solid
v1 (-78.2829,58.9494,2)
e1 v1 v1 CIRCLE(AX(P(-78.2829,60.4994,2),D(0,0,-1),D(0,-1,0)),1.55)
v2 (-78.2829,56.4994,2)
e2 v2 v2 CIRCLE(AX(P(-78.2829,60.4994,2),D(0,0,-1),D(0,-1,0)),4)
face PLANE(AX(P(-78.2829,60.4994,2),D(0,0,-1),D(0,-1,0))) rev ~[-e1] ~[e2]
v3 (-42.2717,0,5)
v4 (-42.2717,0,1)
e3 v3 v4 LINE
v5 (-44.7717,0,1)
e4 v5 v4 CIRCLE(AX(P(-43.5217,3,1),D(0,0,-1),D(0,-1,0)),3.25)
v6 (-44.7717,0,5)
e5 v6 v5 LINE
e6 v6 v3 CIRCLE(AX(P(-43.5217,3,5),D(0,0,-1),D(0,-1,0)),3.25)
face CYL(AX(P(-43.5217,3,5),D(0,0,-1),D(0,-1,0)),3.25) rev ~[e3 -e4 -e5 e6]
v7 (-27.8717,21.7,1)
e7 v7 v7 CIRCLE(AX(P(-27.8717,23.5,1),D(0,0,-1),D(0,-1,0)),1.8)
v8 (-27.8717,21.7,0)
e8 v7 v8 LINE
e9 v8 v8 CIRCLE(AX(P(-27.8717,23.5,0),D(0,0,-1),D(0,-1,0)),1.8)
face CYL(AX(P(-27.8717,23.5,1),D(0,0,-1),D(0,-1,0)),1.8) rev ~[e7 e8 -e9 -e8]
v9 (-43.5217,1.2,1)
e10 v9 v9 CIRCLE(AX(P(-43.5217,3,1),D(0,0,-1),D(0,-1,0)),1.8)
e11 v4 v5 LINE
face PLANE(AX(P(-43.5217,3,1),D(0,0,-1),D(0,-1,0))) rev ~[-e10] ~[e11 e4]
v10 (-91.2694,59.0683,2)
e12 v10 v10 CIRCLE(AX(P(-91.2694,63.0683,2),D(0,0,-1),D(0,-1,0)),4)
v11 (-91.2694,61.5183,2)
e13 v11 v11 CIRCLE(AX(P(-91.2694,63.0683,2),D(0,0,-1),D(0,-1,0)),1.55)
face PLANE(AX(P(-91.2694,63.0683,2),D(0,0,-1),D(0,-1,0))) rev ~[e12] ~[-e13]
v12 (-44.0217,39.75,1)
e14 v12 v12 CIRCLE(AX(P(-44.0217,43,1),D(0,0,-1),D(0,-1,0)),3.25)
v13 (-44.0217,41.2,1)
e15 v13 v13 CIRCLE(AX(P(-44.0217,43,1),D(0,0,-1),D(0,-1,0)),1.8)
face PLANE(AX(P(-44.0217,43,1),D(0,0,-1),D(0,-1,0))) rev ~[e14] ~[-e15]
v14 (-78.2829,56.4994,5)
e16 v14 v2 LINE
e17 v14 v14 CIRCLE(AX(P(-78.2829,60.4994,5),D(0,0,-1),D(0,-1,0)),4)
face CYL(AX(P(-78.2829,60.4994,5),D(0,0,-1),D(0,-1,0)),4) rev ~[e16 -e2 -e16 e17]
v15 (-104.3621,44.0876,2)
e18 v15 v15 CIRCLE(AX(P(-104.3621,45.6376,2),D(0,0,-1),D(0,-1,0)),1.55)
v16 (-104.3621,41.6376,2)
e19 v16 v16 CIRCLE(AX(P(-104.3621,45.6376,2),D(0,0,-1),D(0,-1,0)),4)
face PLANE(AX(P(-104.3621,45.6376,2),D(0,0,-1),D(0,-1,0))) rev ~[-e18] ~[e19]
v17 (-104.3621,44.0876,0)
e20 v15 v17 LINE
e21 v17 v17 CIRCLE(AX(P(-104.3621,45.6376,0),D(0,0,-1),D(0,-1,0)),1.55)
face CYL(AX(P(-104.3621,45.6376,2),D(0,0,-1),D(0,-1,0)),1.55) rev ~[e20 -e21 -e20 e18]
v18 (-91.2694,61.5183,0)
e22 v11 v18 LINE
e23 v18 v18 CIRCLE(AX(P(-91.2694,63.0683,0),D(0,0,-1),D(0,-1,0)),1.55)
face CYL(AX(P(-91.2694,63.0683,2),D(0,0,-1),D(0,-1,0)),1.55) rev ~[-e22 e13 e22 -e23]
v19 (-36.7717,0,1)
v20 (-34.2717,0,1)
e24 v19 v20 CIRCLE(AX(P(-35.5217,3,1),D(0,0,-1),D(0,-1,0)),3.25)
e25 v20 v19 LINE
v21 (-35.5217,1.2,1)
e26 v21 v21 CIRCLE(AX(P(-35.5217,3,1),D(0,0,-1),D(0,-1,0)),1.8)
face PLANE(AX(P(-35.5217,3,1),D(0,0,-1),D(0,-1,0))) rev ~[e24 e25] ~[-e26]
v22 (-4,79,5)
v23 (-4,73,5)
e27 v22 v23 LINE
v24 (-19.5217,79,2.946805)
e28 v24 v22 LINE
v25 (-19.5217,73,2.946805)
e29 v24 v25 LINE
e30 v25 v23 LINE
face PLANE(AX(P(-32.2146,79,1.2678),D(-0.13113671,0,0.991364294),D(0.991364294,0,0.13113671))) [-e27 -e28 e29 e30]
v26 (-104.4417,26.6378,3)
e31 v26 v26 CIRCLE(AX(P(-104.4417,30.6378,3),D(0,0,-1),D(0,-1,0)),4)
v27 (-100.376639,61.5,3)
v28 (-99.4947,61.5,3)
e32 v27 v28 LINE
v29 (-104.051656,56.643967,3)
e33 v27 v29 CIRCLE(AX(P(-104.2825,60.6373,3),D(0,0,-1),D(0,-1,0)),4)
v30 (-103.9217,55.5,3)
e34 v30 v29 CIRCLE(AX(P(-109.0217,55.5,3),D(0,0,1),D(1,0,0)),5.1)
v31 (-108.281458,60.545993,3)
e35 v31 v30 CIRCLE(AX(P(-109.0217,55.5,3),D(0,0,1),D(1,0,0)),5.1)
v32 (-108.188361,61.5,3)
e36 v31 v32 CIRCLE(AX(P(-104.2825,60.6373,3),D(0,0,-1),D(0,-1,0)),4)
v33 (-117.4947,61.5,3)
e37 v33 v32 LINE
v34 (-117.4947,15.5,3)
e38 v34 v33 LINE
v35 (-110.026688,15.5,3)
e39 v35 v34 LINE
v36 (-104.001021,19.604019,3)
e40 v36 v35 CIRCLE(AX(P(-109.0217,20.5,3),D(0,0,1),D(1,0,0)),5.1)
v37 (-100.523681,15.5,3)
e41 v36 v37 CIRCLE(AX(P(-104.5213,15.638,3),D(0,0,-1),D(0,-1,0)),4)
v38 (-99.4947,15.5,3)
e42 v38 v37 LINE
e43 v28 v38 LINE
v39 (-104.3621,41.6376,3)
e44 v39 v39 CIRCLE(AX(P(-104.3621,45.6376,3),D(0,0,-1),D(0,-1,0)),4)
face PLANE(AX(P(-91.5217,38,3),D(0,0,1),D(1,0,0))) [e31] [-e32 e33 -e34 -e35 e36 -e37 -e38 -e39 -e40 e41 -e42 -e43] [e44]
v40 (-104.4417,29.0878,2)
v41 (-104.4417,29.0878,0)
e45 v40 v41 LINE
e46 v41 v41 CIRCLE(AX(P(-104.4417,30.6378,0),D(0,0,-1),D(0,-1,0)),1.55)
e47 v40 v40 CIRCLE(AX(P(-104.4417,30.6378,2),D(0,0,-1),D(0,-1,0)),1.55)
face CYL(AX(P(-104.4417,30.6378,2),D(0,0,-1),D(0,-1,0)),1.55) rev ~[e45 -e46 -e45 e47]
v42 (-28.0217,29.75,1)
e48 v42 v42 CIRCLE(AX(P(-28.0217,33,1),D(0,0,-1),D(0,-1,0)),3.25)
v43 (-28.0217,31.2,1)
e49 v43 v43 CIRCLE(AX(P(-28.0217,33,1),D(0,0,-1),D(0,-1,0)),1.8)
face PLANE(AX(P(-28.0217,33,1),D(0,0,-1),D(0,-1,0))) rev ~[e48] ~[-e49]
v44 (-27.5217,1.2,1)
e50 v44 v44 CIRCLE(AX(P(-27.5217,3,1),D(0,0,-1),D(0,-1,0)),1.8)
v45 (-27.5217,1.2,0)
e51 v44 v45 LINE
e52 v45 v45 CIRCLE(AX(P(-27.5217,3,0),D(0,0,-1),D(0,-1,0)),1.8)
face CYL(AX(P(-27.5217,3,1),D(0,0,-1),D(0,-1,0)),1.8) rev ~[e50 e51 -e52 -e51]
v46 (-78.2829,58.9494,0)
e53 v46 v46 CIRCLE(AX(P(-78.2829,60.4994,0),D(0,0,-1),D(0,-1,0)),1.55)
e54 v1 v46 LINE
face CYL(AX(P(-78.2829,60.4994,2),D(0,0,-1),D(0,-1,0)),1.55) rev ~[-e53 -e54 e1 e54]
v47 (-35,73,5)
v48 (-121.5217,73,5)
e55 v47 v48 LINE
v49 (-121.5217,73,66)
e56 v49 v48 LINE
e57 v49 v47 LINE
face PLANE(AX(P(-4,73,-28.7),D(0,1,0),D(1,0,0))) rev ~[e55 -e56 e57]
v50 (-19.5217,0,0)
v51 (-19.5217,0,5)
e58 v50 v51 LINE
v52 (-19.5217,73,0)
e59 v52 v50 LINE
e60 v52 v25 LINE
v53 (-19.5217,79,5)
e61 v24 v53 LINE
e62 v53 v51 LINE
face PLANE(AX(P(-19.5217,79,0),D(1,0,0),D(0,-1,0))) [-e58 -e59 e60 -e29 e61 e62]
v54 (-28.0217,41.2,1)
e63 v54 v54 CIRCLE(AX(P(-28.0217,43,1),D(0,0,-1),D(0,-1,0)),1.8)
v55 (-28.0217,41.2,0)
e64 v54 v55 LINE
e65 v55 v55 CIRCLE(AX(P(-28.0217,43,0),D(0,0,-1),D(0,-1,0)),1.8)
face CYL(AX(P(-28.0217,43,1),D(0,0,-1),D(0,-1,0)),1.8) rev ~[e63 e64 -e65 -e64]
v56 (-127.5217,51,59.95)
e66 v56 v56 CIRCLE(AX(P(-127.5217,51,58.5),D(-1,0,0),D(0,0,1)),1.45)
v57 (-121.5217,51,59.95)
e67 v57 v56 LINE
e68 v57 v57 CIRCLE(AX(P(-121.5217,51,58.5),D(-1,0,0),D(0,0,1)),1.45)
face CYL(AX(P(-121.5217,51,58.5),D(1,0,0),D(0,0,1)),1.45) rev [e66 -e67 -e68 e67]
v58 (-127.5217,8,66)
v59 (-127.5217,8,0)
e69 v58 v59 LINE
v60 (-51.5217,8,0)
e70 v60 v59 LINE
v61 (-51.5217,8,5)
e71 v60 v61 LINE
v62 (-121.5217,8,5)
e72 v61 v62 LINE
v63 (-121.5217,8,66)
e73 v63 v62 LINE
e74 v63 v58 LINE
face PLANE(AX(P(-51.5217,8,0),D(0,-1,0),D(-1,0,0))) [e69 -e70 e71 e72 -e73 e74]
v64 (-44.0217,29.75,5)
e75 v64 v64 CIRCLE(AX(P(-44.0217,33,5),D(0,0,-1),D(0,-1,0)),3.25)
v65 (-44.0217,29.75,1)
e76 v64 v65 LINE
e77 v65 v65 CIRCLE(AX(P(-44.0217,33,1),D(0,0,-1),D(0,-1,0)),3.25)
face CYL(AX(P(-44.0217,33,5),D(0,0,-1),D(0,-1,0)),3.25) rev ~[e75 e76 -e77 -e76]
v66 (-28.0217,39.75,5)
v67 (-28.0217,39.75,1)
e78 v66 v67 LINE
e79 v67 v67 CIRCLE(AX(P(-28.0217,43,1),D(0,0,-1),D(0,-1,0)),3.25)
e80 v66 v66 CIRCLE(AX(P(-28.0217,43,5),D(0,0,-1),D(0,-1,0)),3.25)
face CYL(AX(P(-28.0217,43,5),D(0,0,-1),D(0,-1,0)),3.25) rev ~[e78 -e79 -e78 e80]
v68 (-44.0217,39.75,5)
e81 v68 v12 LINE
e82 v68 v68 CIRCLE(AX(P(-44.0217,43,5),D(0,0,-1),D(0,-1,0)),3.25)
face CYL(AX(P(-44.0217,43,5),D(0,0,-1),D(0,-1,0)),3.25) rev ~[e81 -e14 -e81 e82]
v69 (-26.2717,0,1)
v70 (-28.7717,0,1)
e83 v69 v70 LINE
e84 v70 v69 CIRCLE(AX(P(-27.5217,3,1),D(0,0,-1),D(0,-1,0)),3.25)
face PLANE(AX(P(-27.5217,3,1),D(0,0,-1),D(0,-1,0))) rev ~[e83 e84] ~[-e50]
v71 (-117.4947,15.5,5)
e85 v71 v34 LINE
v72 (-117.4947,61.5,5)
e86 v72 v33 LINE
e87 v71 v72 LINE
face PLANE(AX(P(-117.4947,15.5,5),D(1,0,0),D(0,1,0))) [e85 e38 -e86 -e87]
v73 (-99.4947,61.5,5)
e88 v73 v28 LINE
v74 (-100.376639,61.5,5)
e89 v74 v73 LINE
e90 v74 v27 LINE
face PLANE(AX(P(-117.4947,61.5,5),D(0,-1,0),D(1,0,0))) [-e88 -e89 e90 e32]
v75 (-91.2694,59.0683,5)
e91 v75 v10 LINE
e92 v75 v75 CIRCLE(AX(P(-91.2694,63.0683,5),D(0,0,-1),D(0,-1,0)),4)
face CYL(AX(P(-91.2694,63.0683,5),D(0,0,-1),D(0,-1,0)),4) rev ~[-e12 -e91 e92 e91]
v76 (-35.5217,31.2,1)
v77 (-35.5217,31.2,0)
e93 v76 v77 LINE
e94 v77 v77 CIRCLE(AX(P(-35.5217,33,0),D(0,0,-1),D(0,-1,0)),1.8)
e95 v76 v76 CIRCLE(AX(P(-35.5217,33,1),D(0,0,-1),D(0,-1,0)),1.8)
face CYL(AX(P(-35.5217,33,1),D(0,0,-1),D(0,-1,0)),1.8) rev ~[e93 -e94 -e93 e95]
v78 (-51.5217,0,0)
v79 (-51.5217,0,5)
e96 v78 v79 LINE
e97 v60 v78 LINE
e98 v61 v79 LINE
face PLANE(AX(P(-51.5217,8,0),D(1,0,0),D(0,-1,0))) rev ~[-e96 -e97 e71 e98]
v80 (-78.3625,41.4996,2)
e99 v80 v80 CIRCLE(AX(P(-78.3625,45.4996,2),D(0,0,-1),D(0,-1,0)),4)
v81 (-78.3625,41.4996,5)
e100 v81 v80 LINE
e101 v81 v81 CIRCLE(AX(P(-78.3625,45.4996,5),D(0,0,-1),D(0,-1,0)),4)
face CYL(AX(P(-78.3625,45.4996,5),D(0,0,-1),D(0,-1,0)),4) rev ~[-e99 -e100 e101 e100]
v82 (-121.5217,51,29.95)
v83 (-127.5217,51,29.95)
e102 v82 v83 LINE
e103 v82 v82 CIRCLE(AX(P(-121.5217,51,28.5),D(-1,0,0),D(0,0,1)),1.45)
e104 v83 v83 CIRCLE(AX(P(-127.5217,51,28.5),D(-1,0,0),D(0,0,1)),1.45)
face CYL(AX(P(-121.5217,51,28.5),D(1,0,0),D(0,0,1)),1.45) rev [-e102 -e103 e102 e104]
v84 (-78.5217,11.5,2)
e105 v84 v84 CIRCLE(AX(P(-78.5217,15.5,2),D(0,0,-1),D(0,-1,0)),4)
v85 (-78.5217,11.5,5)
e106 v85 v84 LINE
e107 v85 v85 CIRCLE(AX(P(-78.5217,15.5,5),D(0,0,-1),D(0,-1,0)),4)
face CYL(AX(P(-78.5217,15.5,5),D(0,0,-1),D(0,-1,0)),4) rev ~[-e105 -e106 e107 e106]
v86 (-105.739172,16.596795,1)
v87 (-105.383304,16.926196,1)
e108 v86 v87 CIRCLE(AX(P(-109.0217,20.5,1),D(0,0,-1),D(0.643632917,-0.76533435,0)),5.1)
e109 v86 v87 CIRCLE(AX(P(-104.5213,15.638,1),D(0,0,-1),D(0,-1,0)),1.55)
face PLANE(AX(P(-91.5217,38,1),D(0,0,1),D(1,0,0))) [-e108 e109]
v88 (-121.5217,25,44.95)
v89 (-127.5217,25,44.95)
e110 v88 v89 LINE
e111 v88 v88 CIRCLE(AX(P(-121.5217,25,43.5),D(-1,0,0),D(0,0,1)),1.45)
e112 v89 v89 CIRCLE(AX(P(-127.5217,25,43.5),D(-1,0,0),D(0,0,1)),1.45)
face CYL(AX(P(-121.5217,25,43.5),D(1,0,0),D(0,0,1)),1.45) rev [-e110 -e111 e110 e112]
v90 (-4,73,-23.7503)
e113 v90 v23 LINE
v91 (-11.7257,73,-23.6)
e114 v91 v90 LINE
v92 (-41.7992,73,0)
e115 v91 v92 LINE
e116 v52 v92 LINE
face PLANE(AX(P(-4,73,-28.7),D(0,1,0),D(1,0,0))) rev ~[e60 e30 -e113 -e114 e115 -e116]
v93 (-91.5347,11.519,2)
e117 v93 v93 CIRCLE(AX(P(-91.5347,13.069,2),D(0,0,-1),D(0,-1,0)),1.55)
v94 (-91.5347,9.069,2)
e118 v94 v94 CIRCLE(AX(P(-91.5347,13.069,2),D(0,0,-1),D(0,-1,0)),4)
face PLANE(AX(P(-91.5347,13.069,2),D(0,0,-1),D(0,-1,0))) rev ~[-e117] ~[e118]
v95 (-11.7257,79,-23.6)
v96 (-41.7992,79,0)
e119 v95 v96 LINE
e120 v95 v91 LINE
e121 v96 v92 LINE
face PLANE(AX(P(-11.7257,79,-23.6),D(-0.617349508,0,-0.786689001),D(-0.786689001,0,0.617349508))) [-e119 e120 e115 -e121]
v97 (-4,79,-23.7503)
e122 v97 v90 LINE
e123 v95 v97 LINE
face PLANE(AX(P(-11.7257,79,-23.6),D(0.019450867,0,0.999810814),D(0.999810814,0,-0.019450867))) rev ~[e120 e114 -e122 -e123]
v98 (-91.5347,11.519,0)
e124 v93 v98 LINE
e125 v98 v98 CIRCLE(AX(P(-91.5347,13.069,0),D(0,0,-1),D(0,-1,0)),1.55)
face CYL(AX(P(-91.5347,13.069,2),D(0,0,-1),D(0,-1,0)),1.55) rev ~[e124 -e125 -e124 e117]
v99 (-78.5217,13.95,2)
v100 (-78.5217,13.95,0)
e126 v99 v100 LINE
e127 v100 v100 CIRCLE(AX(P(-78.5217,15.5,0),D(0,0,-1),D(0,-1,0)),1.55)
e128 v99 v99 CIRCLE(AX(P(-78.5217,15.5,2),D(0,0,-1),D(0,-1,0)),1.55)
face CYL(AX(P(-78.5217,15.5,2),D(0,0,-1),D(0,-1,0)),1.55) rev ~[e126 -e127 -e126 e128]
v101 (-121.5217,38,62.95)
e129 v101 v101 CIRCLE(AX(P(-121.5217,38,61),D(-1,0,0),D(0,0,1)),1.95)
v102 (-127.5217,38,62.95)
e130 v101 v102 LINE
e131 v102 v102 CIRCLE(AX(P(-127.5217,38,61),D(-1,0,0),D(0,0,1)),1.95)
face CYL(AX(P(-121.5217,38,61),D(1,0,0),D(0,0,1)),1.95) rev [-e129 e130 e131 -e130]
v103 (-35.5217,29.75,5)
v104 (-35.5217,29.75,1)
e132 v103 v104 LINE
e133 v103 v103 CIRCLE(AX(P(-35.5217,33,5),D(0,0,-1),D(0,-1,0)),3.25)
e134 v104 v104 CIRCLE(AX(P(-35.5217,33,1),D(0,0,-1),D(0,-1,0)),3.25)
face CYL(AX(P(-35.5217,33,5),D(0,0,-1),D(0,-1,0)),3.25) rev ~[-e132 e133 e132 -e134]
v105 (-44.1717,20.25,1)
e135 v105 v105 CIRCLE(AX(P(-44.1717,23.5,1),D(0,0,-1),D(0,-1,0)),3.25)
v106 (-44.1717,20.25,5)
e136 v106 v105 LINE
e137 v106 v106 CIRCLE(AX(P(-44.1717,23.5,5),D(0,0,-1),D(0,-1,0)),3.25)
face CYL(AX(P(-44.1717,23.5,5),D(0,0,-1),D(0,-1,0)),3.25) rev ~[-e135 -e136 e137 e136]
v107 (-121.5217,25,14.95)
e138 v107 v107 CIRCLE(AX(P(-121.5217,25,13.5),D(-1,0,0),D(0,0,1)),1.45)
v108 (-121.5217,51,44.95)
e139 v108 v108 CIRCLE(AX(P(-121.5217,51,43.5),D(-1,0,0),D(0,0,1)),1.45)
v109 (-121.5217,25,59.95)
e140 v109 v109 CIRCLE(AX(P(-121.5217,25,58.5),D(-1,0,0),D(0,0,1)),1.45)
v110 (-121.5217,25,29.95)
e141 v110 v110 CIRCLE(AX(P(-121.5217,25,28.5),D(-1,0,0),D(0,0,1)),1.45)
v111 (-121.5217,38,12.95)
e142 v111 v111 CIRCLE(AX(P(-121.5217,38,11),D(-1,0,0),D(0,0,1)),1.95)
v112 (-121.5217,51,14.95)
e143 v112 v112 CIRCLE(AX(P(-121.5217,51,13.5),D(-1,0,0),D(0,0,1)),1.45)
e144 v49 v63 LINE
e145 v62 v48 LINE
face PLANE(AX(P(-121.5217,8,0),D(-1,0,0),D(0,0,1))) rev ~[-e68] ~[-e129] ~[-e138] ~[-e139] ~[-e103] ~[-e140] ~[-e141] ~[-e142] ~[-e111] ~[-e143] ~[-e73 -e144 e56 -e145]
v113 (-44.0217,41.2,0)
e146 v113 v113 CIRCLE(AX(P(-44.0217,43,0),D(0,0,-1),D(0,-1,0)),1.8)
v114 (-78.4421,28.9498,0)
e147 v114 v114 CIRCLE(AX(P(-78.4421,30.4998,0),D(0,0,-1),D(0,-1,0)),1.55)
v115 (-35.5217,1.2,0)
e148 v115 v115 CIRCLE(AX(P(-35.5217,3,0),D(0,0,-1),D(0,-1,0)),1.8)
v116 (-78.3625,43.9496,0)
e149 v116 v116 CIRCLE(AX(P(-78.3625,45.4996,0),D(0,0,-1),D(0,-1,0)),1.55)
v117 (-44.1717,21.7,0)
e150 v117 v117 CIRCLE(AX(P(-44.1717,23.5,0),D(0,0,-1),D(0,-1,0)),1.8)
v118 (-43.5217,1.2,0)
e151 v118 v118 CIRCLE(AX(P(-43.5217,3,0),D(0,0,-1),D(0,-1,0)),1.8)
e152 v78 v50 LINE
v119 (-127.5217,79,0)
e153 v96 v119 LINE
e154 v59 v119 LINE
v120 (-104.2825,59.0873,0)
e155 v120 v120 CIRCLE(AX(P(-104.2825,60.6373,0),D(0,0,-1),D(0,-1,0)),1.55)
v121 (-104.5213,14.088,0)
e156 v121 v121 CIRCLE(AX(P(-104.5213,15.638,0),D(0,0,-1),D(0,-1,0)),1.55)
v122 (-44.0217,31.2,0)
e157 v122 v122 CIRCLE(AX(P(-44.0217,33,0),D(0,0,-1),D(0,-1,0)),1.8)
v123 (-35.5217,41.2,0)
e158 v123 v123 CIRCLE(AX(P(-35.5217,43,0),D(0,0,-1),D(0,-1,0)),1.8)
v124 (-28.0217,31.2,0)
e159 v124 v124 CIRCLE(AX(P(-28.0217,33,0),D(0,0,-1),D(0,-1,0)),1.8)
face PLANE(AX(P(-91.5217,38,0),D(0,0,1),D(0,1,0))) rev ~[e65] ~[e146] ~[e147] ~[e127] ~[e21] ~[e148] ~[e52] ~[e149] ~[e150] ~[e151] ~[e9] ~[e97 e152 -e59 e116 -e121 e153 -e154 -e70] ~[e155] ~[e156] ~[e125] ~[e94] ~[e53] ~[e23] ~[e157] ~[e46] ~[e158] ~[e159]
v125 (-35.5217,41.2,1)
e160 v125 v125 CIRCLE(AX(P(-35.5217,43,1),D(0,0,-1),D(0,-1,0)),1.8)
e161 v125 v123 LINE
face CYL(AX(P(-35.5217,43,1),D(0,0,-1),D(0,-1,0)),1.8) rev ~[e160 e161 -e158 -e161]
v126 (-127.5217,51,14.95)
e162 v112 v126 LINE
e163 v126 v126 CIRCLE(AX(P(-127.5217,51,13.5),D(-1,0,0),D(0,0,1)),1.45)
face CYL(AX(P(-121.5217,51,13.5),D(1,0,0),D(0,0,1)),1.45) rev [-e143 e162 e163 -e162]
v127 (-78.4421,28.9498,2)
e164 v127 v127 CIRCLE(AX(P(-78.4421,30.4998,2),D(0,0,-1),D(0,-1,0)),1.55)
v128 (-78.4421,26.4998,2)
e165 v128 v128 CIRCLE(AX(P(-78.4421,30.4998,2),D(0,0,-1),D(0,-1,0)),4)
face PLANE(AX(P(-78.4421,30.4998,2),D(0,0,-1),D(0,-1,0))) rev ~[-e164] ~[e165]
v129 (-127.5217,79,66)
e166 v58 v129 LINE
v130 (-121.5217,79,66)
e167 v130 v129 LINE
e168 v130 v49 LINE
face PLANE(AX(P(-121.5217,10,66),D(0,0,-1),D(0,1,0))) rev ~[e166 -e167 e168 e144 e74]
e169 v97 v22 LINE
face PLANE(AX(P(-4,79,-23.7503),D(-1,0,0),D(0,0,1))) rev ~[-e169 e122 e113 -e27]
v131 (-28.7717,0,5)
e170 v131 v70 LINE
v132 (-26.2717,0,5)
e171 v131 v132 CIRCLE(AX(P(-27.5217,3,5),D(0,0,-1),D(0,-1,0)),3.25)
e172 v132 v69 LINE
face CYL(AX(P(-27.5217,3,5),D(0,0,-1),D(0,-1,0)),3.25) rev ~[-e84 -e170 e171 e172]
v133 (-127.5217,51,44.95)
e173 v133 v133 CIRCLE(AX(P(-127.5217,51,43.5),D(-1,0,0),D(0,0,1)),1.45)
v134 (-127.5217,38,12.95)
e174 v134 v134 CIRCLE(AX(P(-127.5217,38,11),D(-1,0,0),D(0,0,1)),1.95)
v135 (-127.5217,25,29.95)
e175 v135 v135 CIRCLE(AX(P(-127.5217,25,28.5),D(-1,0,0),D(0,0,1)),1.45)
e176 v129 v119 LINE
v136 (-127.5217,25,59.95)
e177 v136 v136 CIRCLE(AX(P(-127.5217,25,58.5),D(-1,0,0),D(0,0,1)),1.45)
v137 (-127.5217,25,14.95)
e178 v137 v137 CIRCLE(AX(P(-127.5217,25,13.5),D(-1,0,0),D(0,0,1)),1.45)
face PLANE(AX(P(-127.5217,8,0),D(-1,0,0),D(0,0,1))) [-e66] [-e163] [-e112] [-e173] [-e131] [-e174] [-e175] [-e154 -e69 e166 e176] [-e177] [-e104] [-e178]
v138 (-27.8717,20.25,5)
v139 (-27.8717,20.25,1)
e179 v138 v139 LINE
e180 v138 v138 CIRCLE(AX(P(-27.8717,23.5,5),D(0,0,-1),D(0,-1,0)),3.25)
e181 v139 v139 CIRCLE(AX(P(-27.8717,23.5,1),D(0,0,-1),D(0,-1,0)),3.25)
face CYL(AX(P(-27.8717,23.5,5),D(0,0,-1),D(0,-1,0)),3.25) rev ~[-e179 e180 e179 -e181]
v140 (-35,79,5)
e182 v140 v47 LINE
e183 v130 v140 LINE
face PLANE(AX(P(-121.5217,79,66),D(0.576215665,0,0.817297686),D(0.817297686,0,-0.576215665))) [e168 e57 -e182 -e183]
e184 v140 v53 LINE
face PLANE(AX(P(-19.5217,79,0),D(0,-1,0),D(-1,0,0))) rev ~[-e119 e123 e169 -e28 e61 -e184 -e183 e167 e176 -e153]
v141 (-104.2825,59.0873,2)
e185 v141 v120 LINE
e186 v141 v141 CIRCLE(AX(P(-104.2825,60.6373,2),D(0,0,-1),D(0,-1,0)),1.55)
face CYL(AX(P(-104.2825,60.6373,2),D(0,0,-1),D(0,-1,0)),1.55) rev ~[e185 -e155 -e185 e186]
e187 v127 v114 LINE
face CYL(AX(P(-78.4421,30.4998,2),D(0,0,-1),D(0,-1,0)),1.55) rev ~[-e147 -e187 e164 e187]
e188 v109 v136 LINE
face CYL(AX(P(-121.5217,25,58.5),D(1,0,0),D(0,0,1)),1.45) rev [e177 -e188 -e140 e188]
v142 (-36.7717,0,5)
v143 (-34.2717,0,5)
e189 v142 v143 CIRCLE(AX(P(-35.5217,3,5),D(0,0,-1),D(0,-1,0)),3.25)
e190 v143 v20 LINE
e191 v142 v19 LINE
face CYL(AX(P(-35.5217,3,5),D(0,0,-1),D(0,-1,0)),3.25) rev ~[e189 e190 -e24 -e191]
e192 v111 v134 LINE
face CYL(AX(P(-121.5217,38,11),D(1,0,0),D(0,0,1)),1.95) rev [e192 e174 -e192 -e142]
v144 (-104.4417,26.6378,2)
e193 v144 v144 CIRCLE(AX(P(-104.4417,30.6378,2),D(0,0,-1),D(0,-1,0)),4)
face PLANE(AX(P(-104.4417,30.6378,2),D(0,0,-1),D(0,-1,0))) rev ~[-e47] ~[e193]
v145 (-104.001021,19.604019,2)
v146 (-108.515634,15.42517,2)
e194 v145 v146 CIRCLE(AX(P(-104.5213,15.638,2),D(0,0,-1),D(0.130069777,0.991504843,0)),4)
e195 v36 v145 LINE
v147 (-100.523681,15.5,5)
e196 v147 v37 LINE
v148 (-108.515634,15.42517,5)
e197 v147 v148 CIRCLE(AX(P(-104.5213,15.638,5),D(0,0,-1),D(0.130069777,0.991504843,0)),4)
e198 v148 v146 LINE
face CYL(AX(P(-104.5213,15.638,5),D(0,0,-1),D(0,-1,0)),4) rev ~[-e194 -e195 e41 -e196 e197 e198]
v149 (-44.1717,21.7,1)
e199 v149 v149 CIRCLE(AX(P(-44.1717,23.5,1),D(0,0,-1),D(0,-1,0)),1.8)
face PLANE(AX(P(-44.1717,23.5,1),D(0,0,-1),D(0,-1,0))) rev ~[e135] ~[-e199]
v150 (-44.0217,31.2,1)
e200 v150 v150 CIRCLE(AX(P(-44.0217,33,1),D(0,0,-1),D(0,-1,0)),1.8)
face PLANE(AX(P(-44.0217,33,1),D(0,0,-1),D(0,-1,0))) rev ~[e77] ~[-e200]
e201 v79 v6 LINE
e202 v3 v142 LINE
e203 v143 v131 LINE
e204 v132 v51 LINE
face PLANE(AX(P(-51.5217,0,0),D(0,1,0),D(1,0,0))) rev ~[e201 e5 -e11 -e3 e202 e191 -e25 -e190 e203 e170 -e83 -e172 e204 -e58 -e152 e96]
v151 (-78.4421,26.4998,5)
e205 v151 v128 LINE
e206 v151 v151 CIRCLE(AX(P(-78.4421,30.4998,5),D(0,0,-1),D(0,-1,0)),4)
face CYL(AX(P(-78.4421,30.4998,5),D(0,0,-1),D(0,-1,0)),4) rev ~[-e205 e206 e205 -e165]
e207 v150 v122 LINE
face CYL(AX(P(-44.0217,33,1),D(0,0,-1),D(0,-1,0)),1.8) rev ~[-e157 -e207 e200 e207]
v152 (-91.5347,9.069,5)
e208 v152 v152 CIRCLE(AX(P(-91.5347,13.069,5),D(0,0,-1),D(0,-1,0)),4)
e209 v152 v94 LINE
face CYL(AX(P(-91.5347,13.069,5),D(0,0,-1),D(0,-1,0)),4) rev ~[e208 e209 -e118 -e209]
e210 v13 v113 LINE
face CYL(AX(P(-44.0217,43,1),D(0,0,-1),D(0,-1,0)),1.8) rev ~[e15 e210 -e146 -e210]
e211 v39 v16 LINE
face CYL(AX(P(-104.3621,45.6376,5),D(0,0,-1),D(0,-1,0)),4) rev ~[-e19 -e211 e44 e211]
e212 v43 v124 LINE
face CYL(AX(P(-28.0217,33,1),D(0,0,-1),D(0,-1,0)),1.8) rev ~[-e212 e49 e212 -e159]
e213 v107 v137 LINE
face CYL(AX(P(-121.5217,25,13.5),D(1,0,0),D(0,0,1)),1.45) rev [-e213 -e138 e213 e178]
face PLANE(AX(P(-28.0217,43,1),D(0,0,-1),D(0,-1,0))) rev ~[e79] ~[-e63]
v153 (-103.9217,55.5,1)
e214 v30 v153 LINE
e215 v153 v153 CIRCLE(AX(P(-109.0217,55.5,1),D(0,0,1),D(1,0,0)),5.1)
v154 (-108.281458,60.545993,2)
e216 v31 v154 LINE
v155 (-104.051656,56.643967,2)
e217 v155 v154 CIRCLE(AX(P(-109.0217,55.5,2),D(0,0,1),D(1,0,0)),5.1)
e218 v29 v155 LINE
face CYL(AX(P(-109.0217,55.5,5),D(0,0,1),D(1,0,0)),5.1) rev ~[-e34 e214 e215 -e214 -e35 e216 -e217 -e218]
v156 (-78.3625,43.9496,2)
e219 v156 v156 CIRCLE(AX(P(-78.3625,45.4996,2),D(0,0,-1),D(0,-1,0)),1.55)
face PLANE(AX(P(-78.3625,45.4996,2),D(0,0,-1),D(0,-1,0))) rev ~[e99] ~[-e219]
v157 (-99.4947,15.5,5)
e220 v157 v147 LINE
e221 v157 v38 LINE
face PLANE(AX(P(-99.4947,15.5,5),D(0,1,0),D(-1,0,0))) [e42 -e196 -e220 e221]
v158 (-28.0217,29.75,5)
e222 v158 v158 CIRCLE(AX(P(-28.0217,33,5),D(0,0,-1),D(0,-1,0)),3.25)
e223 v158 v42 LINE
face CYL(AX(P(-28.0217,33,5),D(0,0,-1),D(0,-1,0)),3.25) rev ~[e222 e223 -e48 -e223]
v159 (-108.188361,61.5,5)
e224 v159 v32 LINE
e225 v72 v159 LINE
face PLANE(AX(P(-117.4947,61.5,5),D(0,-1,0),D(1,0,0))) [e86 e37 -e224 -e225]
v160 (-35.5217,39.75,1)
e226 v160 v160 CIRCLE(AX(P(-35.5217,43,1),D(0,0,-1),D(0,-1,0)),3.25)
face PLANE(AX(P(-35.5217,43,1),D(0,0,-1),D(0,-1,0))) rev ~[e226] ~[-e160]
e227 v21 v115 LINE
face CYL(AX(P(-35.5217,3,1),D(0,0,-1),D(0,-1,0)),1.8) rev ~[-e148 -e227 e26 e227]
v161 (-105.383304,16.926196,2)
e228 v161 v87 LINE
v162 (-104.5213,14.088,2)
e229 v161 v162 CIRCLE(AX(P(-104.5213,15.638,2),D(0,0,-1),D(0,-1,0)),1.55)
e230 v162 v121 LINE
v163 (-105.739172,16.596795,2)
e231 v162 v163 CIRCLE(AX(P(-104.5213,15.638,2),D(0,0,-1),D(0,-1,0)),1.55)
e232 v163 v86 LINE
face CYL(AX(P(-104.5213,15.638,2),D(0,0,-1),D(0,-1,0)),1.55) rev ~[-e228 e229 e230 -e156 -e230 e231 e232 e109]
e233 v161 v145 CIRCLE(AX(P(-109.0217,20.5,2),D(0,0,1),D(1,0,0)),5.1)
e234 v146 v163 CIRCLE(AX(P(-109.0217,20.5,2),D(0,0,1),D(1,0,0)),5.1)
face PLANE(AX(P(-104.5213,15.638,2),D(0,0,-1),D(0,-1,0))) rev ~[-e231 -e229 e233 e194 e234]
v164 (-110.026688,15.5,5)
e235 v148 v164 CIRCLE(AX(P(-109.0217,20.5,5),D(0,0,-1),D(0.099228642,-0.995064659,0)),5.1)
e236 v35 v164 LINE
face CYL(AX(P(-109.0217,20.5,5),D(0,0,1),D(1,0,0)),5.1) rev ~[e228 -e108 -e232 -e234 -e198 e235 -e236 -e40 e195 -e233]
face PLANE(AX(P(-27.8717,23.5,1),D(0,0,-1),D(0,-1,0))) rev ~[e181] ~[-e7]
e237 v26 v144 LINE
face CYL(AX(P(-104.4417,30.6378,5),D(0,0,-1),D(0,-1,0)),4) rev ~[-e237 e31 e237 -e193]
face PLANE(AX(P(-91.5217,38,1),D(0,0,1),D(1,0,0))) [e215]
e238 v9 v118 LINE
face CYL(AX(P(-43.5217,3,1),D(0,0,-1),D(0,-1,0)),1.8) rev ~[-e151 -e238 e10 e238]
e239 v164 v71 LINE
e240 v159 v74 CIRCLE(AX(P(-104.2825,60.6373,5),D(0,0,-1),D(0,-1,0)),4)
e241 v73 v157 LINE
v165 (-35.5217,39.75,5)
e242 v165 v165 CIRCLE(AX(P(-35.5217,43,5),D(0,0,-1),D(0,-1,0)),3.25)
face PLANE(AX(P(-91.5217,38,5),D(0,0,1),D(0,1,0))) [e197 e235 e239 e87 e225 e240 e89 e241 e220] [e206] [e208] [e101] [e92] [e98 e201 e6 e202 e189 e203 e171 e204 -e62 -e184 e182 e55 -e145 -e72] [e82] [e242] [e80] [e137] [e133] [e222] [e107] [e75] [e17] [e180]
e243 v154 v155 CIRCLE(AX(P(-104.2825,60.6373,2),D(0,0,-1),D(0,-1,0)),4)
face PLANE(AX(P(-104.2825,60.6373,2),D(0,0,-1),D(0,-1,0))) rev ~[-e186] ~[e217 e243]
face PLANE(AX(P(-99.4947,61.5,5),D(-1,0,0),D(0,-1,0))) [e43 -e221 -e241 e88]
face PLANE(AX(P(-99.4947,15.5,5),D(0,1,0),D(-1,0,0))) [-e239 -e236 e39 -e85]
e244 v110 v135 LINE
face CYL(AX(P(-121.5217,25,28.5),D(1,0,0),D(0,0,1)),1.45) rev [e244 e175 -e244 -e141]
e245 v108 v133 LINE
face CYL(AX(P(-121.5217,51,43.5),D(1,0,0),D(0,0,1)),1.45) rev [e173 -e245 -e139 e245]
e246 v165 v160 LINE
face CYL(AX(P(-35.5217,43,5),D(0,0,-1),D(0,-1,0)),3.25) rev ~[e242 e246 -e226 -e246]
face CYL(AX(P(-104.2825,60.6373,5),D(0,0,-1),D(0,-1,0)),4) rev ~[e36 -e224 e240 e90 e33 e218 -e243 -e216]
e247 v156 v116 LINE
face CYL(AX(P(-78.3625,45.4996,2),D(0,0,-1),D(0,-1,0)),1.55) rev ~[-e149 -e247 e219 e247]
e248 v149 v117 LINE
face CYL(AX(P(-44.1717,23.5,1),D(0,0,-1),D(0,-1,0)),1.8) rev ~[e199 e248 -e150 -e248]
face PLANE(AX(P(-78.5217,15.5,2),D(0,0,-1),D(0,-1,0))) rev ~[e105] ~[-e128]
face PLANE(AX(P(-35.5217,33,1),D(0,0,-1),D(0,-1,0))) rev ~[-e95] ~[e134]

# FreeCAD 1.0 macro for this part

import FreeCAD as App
import Part
import Sketcher
Q = App.Units.Quantity

doc = App.newDocument("Part")
body = doc.addObject("PartDesign::Body", "Body")

# Sketch on XY plane
sketch1 = body.newObject("Sketcher::SketchObject", "Sketch")
sketch1.AttachmentSupport = (doc.getObject("XY_Plane"), [""])
sketch1.MapMode = "FlatFace"
sketch1.addGeometry([
    Part.LineSegment(App.Vector(-19.5217, 79, 0), App.Vector(-121.5217, 79, 0)),  # 0
    Part.LineSegment(App.Vector(-121.5217, 79, 0), App.Vector(-121.5217, 8, 0)),  # 1
    Part.LineSegment(App.Vector(-121.5217, 8, 0), App.Vector(-51.5217, 8, 0)),  # 2
    Part.LineSegment(App.Vector(-51.5217, 8, 0), App.Vector(-51.5217, 0, 0)),  # 3
    Part.LineSegment(App.Vector(-51.5217, 0, 0), App.Vector(-19.5217, 0, 0)),  # 4
    Part.LineSegment(App.Vector(-19.5217, 0, 0), App.Vector(-19.5217, 79, 0)),  # 5
], False)
sketch1.addConstraint([
    Sketcher.Constraint("Coincident", 0, 2, 1, 1),
    Sketcher.Constraint("Coincident", 1, 2, 2, 1),
    Sketcher.Constraint("Coincident", 2, 2, 3, 1),
    Sketcher.Constraint("Coincident", 3, 2, 4, 1),
    Sketcher.Constraint("Coincident", 4, 2, 5, 1),
    Sketcher.Constraint("Coincident", 5, 2, 0, 1),
    Sketcher.Constraint("Horizontal", 0),
    Sketcher.Constraint("Vertical", 1),
    Sketcher.Constraint("Horizontal", 2),
    Sketcher.Constraint("Vertical", 3),
    Sketcher.Constraint("Horizontal", 4),
    Sketcher.Constraint("Vertical", 5),
    Sketcher.Constraint("PointOnObject", 3, 2, -1),
    Sketcher.Constraint("DistanceX", 0, 2, 0, 1, Q("102 mm")),
    Sketcher.Constraint("DistanceX", 2, 1, 2, 2, Q("70 mm")),
    Sketcher.Constraint("DistanceY", 1, 2, 1, 1, Q("71 mm")),
    Sketcher.Constraint("DistanceY", 3, 2, 3, 1, Q("8 mm")),
    Sketcher.Constraint("DistanceX", 0, 2, -1, 1, Q("121.5217 mm")),
])
pad1 = body.newObject("PartDesign::Pad", "Pad")
pad1.Profile = sketch1
pad1.Length = 5

# Sketch on XY plane
sketch2 = body.newObject("Sketcher::SketchObject", "Sketch001")
sketch2.AttachmentSupport = (doc.getObject("XY_Plane"), [""])
sketch2.MapMode = "FlatFace"
sketch2.AttachmentOffset = App.Placement(App.Vector(0, 0, 5), App.Rotation())
sketch2.addGeometry([
    Part.Circle(App.Vector(-44.0217, 43, 0), App.Vector(0, 0, 1), 1.8),  # 0
    Part.Circle(App.Vector(-35.5217, 43, 0), App.Vector(0, 0, 1), 1.8),  # 1
    Part.Circle(App.Vector(-28.0217, 43, 0), App.Vector(0, 0, 1), 1.8),  # 2
    Part.Circle(App.Vector(-28.0217, 33, 0), App.Vector(0, 0, 1), 1.8),  # 3
    Part.Circle(App.Vector(-35.5217, 33, 0), App.Vector(0, 0, 1), 1.8),  # 4
    Part.Circle(App.Vector(-44.0217, 33, 0), App.Vector(0, 0, 1), 1.8),  # 5
    Part.Circle(App.Vector(-43.5217, 3, 0), App.Vector(0, 0, 1), 1.8),  # 6
    Part.Circle(App.Vector(-35.5217, 3, 0), App.Vector(0, 0, 1), 1.8),  # 7
    Part.Circle(App.Vector(-27.5217, 3, 0), App.Vector(0, 0, 1), 1.8),  # 8
    Part.Circle(App.Vector(-44.1717, 23.5, 0), App.Vector(0, 0, 1), 1.8),  # 9
    Part.Circle(App.Vector(-27.8717, 23.5, 0), App.Vector(0, 0, 1), 1.8),  # 10
], False)
sketch2.addConstraint([
    Sketcher.Constraint("Equal", 0, 1),
    Sketcher.Constraint("Equal", 1, 2),
    Sketcher.Constraint("Equal", 2, 3),
    Sketcher.Constraint("Equal", 3, 4),
    Sketcher.Constraint("Equal", 4, 5),
    Sketcher.Constraint("Equal", 5, 6),
    Sketcher.Constraint("Equal", 6, 7),
    Sketcher.Constraint("Equal", 7, 8),
    Sketcher.Constraint("Equal", 8, 9),
    Sketcher.Constraint("Equal", 9, 10),
    Sketcher.Constraint("Horizontal", 0, 3, 1, 3),
    Sketcher.Constraint("Horizontal", 1, 3, 2, 3),
    Sketcher.Constraint("Horizontal", 3, 3, 4, 3),
    Sketcher.Constraint("Horizontal", 4, 3, 5, 3),
    Sketcher.Constraint("Horizontal", 6, 3, 7, 3),
    Sketcher.Constraint("Horizontal", 7, 3, 8, 3),
    Sketcher.Constraint("Horizontal", 9, 3, 10, 3),
    Sketcher.Constraint("Vertical", 2, 3, 3, 3),
    Sketcher.Constraint("Vertical", 1, 3, 4, 3),
    Sketcher.Constraint("Vertical", 0, 3, 5, 3),
    Sketcher.Constraint("Vertical", 4, 3, 7, 3),
    Sketcher.Constraint("Diameter", 0, Q("3.6 mm")),
    Sketcher.Constraint("DistanceY", -1, 1, 0, 3, Q("43 mm")),
    Sketcher.Constraint("DistanceY", -1, 1, 3, 3, Q("33 mm")),
    Sketcher.Constraint("DistanceY", -1, 1, 6, 3, Q("3 mm")),
    Sketcher.Constraint("DistanceX", 0, 3, 2, 3, Q("16 mm")),
    Sketcher.Constraint("DistanceX", 6, 3, 4, 3, Q("8 mm")),
    Sketcher.Constraint("DistanceX", 7, 3, 8, 3, Q("8 mm")),
    Sketcher.Constraint("DistanceY", -1, 1, 9, 3, Q("23.5 mm")),
    Sketcher.Constraint("DistanceX", 0, 3, 1, 3, Q("8.5 mm")),
    Sketcher.Constraint("DistanceX", 9, 3, 10, 3, Q("16.3 mm")),
    Sketcher.Constraint("DistanceX", 9, 3, 5, 3, Q("0.15 mm")),
    Sketcher.Constraint("DistanceX", 0, 3, -1, 1, Q("44.0217 mm")),
])
doc.recompute()
hole = body.newObject("PartDesign::Hole", "Hole")
hole.Profile = sketch2
hole.ThreadType = "None"
hole.Diameter = 3.6
hole.DepthType = "Dimension"
hole.Depth = 12
hole.DrillPoint = "Angled"
hole.DrillPointAngle = 118
hole.HoleCutType = "Counterbore"
hole.HoleCutDiameter = 6.5
hole.HoleCutDepth = 4

# Sketch on XY plane
sketch3 = body.newObject("Sketcher::SketchObject", "Sketch002")
sketch3.AttachmentSupport = (doc.getObject("XY_Plane"), [""])
sketch3.MapMode = "FlatFace"
sketch3.AttachmentOffset = App.Placement(App.Vector(0, 0, 5), App.Rotation())
sketch3.addGeometry([
    Part.Circle(App.Vector(-104.2825, 60.6373, 0), App.Vector(0, 0, 1), 1.55),  # 0
    Part.Circle(App.Vector(-104.3621, 45.6376, 0), App.Vector(0, 0, 1), 1.55),  # 1
    Part.Circle(App.Vector(-104.4417, 30.6378, 0), App.Vector(0, 0, 1), 1.55),  # 2
    Part.Circle(App.Vector(-104.5213, 15.638, 0), App.Vector(0, 0, 1), 1.55),  # 3
    Part.Circle(App.Vector(-91.5347, 13.069, 0), App.Vector(0, 0, 1), 1.55),  # 4
    Part.Circle(App.Vector(-91.2694, 63.0683, 0), App.Vector(0, 0, 1), 1.55),  # 5
    Part.Circle(App.Vector(-78.2829, 60.4994, 0), App.Vector(0, 0, 1), 1.55),  # 6
    Part.Circle(App.Vector(-78.3625, 45.4996, 0), App.Vector(0, 0, 1), 1.55),  # 7
    Part.Circle(App.Vector(-78.4421, 30.4998, 0), App.Vector(0, 0, 1), 1.55),  # 8
    Part.Circle(App.Vector(-78.5217, 15.5, 0), App.Vector(0, 0, 1), 1.55),  # 9
], False)
sketch3.addConstraint([
    Sketcher.Constraint("Equal", 0, 1),
    Sketcher.Constraint("Equal", 1, 2),
    Sketcher.Constraint("Equal", 2, 3),
    Sketcher.Constraint("Equal", 3, 4),
    Sketcher.Constraint("Equal", 4, 5),
    Sketcher.Constraint("Equal", 5, 6),
    Sketcher.Constraint("Equal", 6, 7),
    Sketcher.Constraint("Equal", 7, 8),
    Sketcher.Constraint("Equal", 8, 9),
    Sketcher.Constraint("Diameter", 0, Q("3.1 mm")),
    Sketcher.Constraint("DistanceY", -1, 1, 9, 3, Q("15.5 mm")),
    Sketcher.Constraint("DistanceX", 0, 3, 7, 3, Q("25.92 mm")),
    Sketcher.Constraint("DistanceX", 2, 3, 9, 3, Q("25.92 mm")),
    Sketcher.Constraint("DistanceX", 1, 3, -1, 1, Q("104.362 mm")),
    Sketcher.Constraint("DistanceY", -1, 1, 3, 3, Q("15.638 mm")),
    Sketcher.Constraint("DistanceY", -1, 1, 4, 3, Q("13.069 mm")),
    Sketcher.Constraint("DistanceX", 6, 3, -1, 1, Q("78.283 mm")),
    Sketcher.Constraint("DistanceX", 8, 3, -1, 1, Q("78.442 mm")),
    Sketcher.Constraint("DistanceX", 2, 3, 4, 3, Q("12.907 mm")),
    Sketcher.Constraint("DistanceX", 0, 3, 5, 3, Q("13.013 mm")),
    Sketcher.Constraint("DistanceY", 0, 3, 5, 3, Q("2.431 mm")),
    Sketcher.Constraint("DistanceX", 3, 3, 5, 3, Q("13.252 mm")),
    Sketcher.Constraint("DistanceY", 6, 3, 5, 3, Q("2.569 mm")),
    Sketcher.Constraint("DistanceY", 7, 3, 1, 3, Q("0.138 mm")),
    Sketcher.Constraint("DistanceY", 8, 3, 2, 3, Q("0.138 mm")),
    Sketcher.Constraint("DistanceX", 0, 3, -1, 1, Q("104.2825 mm")),
    Sketcher.Constraint("DistanceY", -1, 1, 0, 3, Q("60.6373 mm")),
    Sketcher.Constraint("DistanceY", -1, 1, 1, 3, Q("45.6376 mm")),
    Sketcher.Constraint("DistanceX", 2, 3, -1, 1, Q("104.4417 mm")),
    Sketcher.Constraint("DistanceY", -1, 1, 2, 3, Q("30.6378 mm")),
])
doc.recompute()
hole2 = body.newObject("PartDesign::Hole", "Hole001")
hole2.Profile = sketch3
hole2.ThreadType = "None"
hole2.Diameter = 3.1
hole2.DepthType = "Dimension"
hole2.Depth = 12
hole2.DrillPoint = "Angled"
hole2.DrillPointAngle = 118
hole2.HoleCutType = "Counterbore"
hole2.HoleCutDiameter = 8
hole2.HoleCutDepth = 3

# Sketch on YZ plane
sketch4 = body.newObject("Sketcher::SketchObject", "Sketch003")
sketch4.AttachmentSupport = (doc.getObject("YZ_Plane"), [""])
sketch4.MapMode = "FlatFace"
sketch4.AttachmentOffset = App.Placement(App.Vector(0, 0, -121.5217), App.Rotation())
sketch4.addGeometry([
    Part.LineSegment(App.Vector(79, 66, 0), App.Vector(79, 0, 0)),  # 0
    Part.LineSegment(App.Vector(79, 0, 0), App.Vector(8, 0, 0)),  # 1
    Part.LineSegment(App.Vector(8, 0, 0), App.Vector(8, 66, 0)),  # 2
    Part.LineSegment(App.Vector(8, 66, 0), App.Vector(79, 66, 0)),  # 3
    Part.Circle(App.Vector(25, 13.5, 0), App.Vector(0, 0, 1), 1.45),  # 4
    Part.Circle(App.Vector(25, 28.5, 0), App.Vector(0, 0, 1), 1.45),  # 5
    Part.Circle(App.Vector(38, 11, 0), App.Vector(0, 0, 1), 1.95),  # 6
    Part.Circle(App.Vector(25, 43.5, 0), App.Vector(0, 0, 1), 1.45),  # 7
    Part.Circle(App.Vector(25, 58.5, 0), App.Vector(0, 0, 1), 1.45),  # 8
    Part.Circle(App.Vector(38, 61, 0), App.Vector(0, 0, 1), 1.95),  # 9
    Part.Circle(App.Vector(51, 13.5, 0), App.Vector(0, 0, 1), 1.45),  # 10
    Part.Circle(App.Vector(51, 28.5, 0), App.Vector(0, 0, 1), 1.45),  # 11
    Part.Circle(App.Vector(51, 43.5, 0), App.Vector(0, 0, 1), 1.45),  # 12
    Part.Circle(App.Vector(51, 58.5, 0), App.Vector(0, 0, 1), 1.45),  # 13
], False)
sketch4.addConstraint([
    Sketcher.Constraint("Coincident", 0, 2, 1, 1),
    Sketcher.Constraint("Coincident", 1, 2, 2, 1),
    Sketcher.Constraint("Coincident", 2, 2, 3, 1),
    Sketcher.Constraint("Coincident", 3, 2, 0, 1),
    Sketcher.Constraint("Vertical", 0),
    Sketcher.Constraint("Horizontal", 1),
    Sketcher.Constraint("Vertical", 2),
    Sketcher.Constraint("Horizontal", 3),
    Sketcher.Constraint("Equal", 4, 5),
    Sketcher.Constraint("Equal", 5, 7),
    Sketcher.Constraint("Equal", 7, 8),
    Sketcher.Constraint("Equal", 6, 9),
    Sketcher.Constraint("Equal", 8, 10),
    Sketcher.Constraint("Equal", 10, 11),
    Sketcher.Constraint("Equal", 11, 12),
    Sketcher.Constraint("Equal", 12, 13),
    Sketcher.Constraint("PointOnObject", 0, 2, -1),
    Sketcher.Constraint("Horizontal", 4, 3, 10, 3),
    Sketcher.Constraint("Horizontal", 5, 3, 11, 3),
    Sketcher.Constraint("Horizontal", 7, 3, 12, 3),
    Sketcher.Constraint("Horizontal", 8, 3, 13, 3),
    Sketcher.Constraint("Vertical", 4, 3, 5, 3),
    Sketcher.Constraint("Vertical", 5, 3, 7, 3),
    Sketcher.Constraint("Vertical", 7, 3, 8, 3),
    Sketcher.Constraint("Vertical", 6, 3, 9, 3),
    Sketcher.Constraint("Vertical", 10, 3, 11, 3),
    Sketcher.Constraint("Vertical", 11, 3, 12, 3),
    Sketcher.Constraint("Vertical", 12, 3, 13, 3),
    Sketcher.Constraint("Diameter", 4, Q("2.9 mm")),
    Sketcher.Constraint("Diameter", 6, Q("3.9 mm")),
    Sketcher.Constraint("DistanceX", 1, 2, 1, 1, Q("71 mm")),
    Sketcher.Constraint("DistanceY", 0, 2, 0, 1, Q("66 mm")),
    Sketcher.Constraint("DistanceX", -1, 1, 4, 3, Q("25 mm")),
    Sketcher.Constraint("DistanceX", -1, 1, 6, 3, Q("38 mm")),
    Sketcher.Constraint("DistanceY", -1, 1, 6, 3, Q("11 mm")),
    Sketcher.Constraint("DistanceY", -1, 1, 9, 3, Q("61 mm")),
    Sketcher.Constraint("DistanceX", -1, 1, 10, 3, Q("51 mm")),
    Sketcher.Constraint("DistanceX", -1, 1, 0, 2, Q("79 mm")),
    Sketcher.Constraint("DistanceY", 4, 3, 5, 3, Q("15 mm")),
    Sketcher.Constraint("DistanceY", 5, 3, 7, 3, Q("15 mm")),
    Sketcher.Constraint("DistanceY", 7, 3, 8, 3, Q("15 mm")),
    Sketcher.Constraint("DistanceY", -1, 1, 4, 3, Q("13.5 mm")),
])
pad2 = body.newObject("PartDesign::Pad", "Pad001")
pad2.Profile = sketch4
pad2.Length = 6
pad2.Reversed = True

# Sketch on XZ plane
sketch5 = body.newObject("Sketcher::SketchObject", "Sketch004")
sketch5.AttachmentSupport = (doc.getObject("XZ_Plane"), [""])
sketch5.MapMode = "FlatFace"
sketch5.AttachmentOffset = App.Placement(App.Vector(0, 0, -79), App.Rotation())
sketch5.addGeometry([
    Part.LineSegment(App.Vector(-127.5217, 66, 0), App.Vector(-121.5217, 66, 0)),  # 0
    Part.LineSegment(App.Vector(-121.5217, 66, 0), App.Vector(-35, 5, 0)),  # 1
    Part.LineSegment(App.Vector(-35, 5, 0), App.Vector(-35, 0.8994, 0)),  # 2
    Part.LineSegment(App.Vector(-34.999995, 0.899363, 0), App.Vector(-32.2146, 1.2678, 0)),  # 3
    Part.LineSegment(App.Vector(-32.2146, 1.2678, 0), App.Vector(-4, 5, 0)),  # 4
    Part.LineSegment(App.Vector(-4, 5, 0), App.Vector(-4, -23.7503, 0)),  # 5
    Part.LineSegment(App.Vector(-4, -23.7503, 0), App.Vector(-11.7257, -23.6, 0)),  # 6
    Part.LineSegment(App.Vector(-11.7257, -23.6, 0), App.Vector(-41.7992, 0, 0)),  # 7
    Part.LineSegment(App.Vector(-41.7992, 0, 0), App.Vector(-127.5217, 0, 0)),  # 8
    Part.LineSegment(App.Vector(-127.5217, 0, 0), App.Vector(-127.5217, 66, 0)),  # 9
], False)
sketch5.addConstraint([
    Sketcher.Constraint("Coincident", 0, 2, 1, 1),
    Sketcher.Constraint("Coincident", 1, 2, 2, 1),
    Sketcher.Constraint("Coincident", 2, 2, 3, 1),
    Sketcher.Constraint("Coincident", 3, 2, 4, 1),
    Sketcher.Constraint("Coincident", 4, 2, 5, 1),
    Sketcher.Constraint("Coincident", 5, 2, 6, 1),
    Sketcher.Constraint("Coincident", 6, 2, 7, 1),
    Sketcher.Constraint("Coincident", 7, 2, 8, 1),
    Sketcher.Constraint("Coincident", 8, 2, 9, 1),
    Sketcher.Constraint("Coincident", 9, 2, 0, 1),
    Sketcher.Constraint("Horizontal", 0),
    Sketcher.Constraint("Vertical", 2),
    Sketcher.Constraint("Vertical", 5),
    Sketcher.Constraint("Horizontal", 8),
    Sketcher.Constraint("Vertical", 9),
    Sketcher.Constraint("PointOnObject", 7, 2, -1),
    Sketcher.Constraint("Parallel", 3, 4),
    Sketcher.Constraint("Horizontal", 1, 2, 4, 2),
    Sketcher.Constraint("DistanceX", 0, 1, 0, 2, Q("6 mm")),
    Sketcher.Constraint("DistanceY", 9, 1, 9, 2, Q("66 mm")),
    Sketcher.Constraint("DistanceX", 1, 2, -1, 1, Q("35 mm")),
    Sketcher.Constraint("DistanceY", -1, 1, 1, 2, Q("5 mm")),
    Sketcher.Constraint("DistanceX", 4, 2, -1, 1, Q("4 mm")),
    Sketcher.Constraint("DistanceY", 6, 2, -1, 1, Q("23.6 mm")),
    Sketcher.Constraint("Distance", 7, Q("38.228 mm")),
    Sketcher.Constraint("DistanceX", 8, 2, 8, 1, Q("85.7225 mm")),
    Sketcher.Constraint("DistanceY", 2, 2, 2, 1, Q("4.1006 mm")),
    Sketcher.Constraint("DistanceY", 5, 2, 5, 1, Q("28.7503 mm")),
    Sketcher.Constraint("DistanceX", 0, 2, 3, 2, Q("89.307 mm")),
    Sketcher.Constraint("DistanceY", 5, 2, 3, 2, Q("25.018 mm")),
])
pad3 = body.newObject("PartDesign::Pad", "Pad002")
pad3.Profile = sketch5
pad3.Length = 6

# Sketch on XY plane
sketch6 = body.newObject("Sketcher::SketchObject", "Sketch005")
sketch6.AttachmentSupport = (doc.getObject("XY_Plane"), [""])
sketch6.MapMode = "FlatFace"
sketch6.AttachmentOffset = App.Placement(App.Vector(0, 0, 5), App.Rotation())
sketch6.addGeometry([
    Part.Circle(App.Vector(-109.0217, 20.5, 0), App.Vector(0, 0, 1), 5.1),
    Part.Circle(App.Vector(-109.0217, 55.5, 0), App.Vector(0, 0, 1), 5.1),
], False)
sketch6.addConstraint([
    Sketcher.Constraint("Equal", 0, 1),
    Sketcher.Constraint("Vertical", 0, 3, 1, 3),
    Sketcher.Constraint("Diameter", 0, Q("10.2 mm")),
    Sketcher.Constraint("DistanceY", 0, 3, 1, 3, Q("35 mm")),
    Sketcher.Constraint("DistanceY", -1, 1, 0, 3, Q("20.5 mm")),
    Sketcher.Constraint("DistanceX", 0, 3, -1, 1, Q("109.0217 mm")),
])
pocket1 = body.newObject("PartDesign::Pocket", "Pocket")
pocket1.Profile = sketch6
pocket1.Length = 4

# Sketch on XY plane
sketch7 = body.newObject("Sketcher::SketchObject", "Sketch006")
sketch7.AttachmentSupport = (doc.getObject("XY_Plane"), [""])
sketch7.MapMode = "FlatFace"
sketch7.AttachmentOffset = App.Placement(App.Vector(0, 0, 5), App.Rotation())
sketch7.addGeometry([
    Part.LineSegment(App.Vector(-117.4947, 15.5, 0), App.Vector(-99.4947, 15.5, 0)),
    Part.LineSegment(App.Vector(-99.4947, 15.5, 0), App.Vector(-99.4947, 61.5, 0)),
    Part.LineSegment(App.Vector(-99.4947, 61.5, 0), App.Vector(-117.4947, 61.5, 0)),
    Part.LineSegment(App.Vector(-117.4947, 61.5, 0), App.Vector(-117.4947, 15.5, 0)),
], False)
sketch7.addConstraint([
    Sketcher.Constraint("Coincident", 0, 2, 1, 1),
    Sketcher.Constraint("Coincident", 1, 2, 2, 1),
    Sketcher.Constraint("Coincident", 2, 2, 3, 1),
    Sketcher.Constraint("Coincident", 3, 2, 0, 1),
    Sketcher.Constraint("Horizontal", 0),
    Sketcher.Constraint("Vertical", 1),
    Sketcher.Constraint("Horizontal", 2),
    Sketcher.Constraint("Vertical", 3),
    Sketcher.Constraint("DistanceX", 0, 1, 0, 2, Q("18 mm")),
    Sketcher.Constraint("DistanceY", 1, 1, 1, 2, Q("46 mm")),
    Sketcher.Constraint("DistanceY", -1, 1, 0, 2, Q("15.5 mm")),
    Sketcher.Constraint("DistanceX", 0, 2, -1, 1, Q("99.4947 mm")),
])
pocket2 = body.newObject("PartDesign::Pocket", "Pocket001")
pocket2.Profile = sketch7
pocket2.Length = 2

# Sketch on XZ plane
sketch8 = body.newObject("Sketcher::SketchObject", "Sketch007")
sketch8.AttachmentSupport = (doc.getObject("XZ_Plane"), [""])
sketch8.MapMode = "FlatFace"
sketch8.AttachmentOffset = App.Placement(App.Vector(0, 0, -79), App.Rotation())
sketch8.addGeometry([
    Part.Circle(App.Vector(5, -5.5, 0), App.Vector(0, 0, 1), 0.6),
    Part.Circle(App.Vector(-1.5, -21, 0), App.Vector(0, 0, 1), 0.6),
    Part.Circle(App.Vector(26.5, -16, 0), App.Vector(0, 0, 1), 0.6),
    Part.Circle(App.Vector(5, -0.5, 0), App.Vector(0, 0, 1), 0.6),
], False)
sketch8.addConstraint([
    Sketcher.Constraint("Equal", 0, 1),
    Sketcher.Constraint("Equal", 1, 2),
    Sketcher.Constraint("Equal", 2, 3),
    Sketcher.Constraint("Vertical", 0, 3, 3, 3),
    Sketcher.Constraint("Diameter", 0, Q("1.2 mm")),
    Sketcher.Constraint("DistanceX", -1, 1, 0, 3, Q("5 mm")),
    Sketcher.Constraint("DistanceY", 1, 3, -1, 1, Q("21 mm")),
    Sketcher.Constraint("DistanceY", 2, 3, -1, 1, Q("16 mm")),
    Sketcher.Constraint("DistanceX", 1, 3, 2, 3, Q("28 mm")),
    Sketcher.Constraint("DistanceY", 0, 3, 3, 3, Q("5 mm")),
    Sketcher.Constraint("DistanceY", 0, 3, -1, 1, Q("5.5 mm")),
    Sketcher.Constraint("DistanceX", 1, 3, -1, 1, Q("1.5 mm")),
])
doc.recompute()
hole3 = body.newObject("PartDesign::Hole", "Hole002")
hole3.Profile = sketch8
hole3.ThreadType = "None"
hole3.Diameter = 1.2
hole3.DepthType = "Dimension"
hole3.Depth = 10
hole3.DrillPoint = "Angled"
hole3.DrillPointAngle = 118
hole3.Reversed = True

doc.recompute()
